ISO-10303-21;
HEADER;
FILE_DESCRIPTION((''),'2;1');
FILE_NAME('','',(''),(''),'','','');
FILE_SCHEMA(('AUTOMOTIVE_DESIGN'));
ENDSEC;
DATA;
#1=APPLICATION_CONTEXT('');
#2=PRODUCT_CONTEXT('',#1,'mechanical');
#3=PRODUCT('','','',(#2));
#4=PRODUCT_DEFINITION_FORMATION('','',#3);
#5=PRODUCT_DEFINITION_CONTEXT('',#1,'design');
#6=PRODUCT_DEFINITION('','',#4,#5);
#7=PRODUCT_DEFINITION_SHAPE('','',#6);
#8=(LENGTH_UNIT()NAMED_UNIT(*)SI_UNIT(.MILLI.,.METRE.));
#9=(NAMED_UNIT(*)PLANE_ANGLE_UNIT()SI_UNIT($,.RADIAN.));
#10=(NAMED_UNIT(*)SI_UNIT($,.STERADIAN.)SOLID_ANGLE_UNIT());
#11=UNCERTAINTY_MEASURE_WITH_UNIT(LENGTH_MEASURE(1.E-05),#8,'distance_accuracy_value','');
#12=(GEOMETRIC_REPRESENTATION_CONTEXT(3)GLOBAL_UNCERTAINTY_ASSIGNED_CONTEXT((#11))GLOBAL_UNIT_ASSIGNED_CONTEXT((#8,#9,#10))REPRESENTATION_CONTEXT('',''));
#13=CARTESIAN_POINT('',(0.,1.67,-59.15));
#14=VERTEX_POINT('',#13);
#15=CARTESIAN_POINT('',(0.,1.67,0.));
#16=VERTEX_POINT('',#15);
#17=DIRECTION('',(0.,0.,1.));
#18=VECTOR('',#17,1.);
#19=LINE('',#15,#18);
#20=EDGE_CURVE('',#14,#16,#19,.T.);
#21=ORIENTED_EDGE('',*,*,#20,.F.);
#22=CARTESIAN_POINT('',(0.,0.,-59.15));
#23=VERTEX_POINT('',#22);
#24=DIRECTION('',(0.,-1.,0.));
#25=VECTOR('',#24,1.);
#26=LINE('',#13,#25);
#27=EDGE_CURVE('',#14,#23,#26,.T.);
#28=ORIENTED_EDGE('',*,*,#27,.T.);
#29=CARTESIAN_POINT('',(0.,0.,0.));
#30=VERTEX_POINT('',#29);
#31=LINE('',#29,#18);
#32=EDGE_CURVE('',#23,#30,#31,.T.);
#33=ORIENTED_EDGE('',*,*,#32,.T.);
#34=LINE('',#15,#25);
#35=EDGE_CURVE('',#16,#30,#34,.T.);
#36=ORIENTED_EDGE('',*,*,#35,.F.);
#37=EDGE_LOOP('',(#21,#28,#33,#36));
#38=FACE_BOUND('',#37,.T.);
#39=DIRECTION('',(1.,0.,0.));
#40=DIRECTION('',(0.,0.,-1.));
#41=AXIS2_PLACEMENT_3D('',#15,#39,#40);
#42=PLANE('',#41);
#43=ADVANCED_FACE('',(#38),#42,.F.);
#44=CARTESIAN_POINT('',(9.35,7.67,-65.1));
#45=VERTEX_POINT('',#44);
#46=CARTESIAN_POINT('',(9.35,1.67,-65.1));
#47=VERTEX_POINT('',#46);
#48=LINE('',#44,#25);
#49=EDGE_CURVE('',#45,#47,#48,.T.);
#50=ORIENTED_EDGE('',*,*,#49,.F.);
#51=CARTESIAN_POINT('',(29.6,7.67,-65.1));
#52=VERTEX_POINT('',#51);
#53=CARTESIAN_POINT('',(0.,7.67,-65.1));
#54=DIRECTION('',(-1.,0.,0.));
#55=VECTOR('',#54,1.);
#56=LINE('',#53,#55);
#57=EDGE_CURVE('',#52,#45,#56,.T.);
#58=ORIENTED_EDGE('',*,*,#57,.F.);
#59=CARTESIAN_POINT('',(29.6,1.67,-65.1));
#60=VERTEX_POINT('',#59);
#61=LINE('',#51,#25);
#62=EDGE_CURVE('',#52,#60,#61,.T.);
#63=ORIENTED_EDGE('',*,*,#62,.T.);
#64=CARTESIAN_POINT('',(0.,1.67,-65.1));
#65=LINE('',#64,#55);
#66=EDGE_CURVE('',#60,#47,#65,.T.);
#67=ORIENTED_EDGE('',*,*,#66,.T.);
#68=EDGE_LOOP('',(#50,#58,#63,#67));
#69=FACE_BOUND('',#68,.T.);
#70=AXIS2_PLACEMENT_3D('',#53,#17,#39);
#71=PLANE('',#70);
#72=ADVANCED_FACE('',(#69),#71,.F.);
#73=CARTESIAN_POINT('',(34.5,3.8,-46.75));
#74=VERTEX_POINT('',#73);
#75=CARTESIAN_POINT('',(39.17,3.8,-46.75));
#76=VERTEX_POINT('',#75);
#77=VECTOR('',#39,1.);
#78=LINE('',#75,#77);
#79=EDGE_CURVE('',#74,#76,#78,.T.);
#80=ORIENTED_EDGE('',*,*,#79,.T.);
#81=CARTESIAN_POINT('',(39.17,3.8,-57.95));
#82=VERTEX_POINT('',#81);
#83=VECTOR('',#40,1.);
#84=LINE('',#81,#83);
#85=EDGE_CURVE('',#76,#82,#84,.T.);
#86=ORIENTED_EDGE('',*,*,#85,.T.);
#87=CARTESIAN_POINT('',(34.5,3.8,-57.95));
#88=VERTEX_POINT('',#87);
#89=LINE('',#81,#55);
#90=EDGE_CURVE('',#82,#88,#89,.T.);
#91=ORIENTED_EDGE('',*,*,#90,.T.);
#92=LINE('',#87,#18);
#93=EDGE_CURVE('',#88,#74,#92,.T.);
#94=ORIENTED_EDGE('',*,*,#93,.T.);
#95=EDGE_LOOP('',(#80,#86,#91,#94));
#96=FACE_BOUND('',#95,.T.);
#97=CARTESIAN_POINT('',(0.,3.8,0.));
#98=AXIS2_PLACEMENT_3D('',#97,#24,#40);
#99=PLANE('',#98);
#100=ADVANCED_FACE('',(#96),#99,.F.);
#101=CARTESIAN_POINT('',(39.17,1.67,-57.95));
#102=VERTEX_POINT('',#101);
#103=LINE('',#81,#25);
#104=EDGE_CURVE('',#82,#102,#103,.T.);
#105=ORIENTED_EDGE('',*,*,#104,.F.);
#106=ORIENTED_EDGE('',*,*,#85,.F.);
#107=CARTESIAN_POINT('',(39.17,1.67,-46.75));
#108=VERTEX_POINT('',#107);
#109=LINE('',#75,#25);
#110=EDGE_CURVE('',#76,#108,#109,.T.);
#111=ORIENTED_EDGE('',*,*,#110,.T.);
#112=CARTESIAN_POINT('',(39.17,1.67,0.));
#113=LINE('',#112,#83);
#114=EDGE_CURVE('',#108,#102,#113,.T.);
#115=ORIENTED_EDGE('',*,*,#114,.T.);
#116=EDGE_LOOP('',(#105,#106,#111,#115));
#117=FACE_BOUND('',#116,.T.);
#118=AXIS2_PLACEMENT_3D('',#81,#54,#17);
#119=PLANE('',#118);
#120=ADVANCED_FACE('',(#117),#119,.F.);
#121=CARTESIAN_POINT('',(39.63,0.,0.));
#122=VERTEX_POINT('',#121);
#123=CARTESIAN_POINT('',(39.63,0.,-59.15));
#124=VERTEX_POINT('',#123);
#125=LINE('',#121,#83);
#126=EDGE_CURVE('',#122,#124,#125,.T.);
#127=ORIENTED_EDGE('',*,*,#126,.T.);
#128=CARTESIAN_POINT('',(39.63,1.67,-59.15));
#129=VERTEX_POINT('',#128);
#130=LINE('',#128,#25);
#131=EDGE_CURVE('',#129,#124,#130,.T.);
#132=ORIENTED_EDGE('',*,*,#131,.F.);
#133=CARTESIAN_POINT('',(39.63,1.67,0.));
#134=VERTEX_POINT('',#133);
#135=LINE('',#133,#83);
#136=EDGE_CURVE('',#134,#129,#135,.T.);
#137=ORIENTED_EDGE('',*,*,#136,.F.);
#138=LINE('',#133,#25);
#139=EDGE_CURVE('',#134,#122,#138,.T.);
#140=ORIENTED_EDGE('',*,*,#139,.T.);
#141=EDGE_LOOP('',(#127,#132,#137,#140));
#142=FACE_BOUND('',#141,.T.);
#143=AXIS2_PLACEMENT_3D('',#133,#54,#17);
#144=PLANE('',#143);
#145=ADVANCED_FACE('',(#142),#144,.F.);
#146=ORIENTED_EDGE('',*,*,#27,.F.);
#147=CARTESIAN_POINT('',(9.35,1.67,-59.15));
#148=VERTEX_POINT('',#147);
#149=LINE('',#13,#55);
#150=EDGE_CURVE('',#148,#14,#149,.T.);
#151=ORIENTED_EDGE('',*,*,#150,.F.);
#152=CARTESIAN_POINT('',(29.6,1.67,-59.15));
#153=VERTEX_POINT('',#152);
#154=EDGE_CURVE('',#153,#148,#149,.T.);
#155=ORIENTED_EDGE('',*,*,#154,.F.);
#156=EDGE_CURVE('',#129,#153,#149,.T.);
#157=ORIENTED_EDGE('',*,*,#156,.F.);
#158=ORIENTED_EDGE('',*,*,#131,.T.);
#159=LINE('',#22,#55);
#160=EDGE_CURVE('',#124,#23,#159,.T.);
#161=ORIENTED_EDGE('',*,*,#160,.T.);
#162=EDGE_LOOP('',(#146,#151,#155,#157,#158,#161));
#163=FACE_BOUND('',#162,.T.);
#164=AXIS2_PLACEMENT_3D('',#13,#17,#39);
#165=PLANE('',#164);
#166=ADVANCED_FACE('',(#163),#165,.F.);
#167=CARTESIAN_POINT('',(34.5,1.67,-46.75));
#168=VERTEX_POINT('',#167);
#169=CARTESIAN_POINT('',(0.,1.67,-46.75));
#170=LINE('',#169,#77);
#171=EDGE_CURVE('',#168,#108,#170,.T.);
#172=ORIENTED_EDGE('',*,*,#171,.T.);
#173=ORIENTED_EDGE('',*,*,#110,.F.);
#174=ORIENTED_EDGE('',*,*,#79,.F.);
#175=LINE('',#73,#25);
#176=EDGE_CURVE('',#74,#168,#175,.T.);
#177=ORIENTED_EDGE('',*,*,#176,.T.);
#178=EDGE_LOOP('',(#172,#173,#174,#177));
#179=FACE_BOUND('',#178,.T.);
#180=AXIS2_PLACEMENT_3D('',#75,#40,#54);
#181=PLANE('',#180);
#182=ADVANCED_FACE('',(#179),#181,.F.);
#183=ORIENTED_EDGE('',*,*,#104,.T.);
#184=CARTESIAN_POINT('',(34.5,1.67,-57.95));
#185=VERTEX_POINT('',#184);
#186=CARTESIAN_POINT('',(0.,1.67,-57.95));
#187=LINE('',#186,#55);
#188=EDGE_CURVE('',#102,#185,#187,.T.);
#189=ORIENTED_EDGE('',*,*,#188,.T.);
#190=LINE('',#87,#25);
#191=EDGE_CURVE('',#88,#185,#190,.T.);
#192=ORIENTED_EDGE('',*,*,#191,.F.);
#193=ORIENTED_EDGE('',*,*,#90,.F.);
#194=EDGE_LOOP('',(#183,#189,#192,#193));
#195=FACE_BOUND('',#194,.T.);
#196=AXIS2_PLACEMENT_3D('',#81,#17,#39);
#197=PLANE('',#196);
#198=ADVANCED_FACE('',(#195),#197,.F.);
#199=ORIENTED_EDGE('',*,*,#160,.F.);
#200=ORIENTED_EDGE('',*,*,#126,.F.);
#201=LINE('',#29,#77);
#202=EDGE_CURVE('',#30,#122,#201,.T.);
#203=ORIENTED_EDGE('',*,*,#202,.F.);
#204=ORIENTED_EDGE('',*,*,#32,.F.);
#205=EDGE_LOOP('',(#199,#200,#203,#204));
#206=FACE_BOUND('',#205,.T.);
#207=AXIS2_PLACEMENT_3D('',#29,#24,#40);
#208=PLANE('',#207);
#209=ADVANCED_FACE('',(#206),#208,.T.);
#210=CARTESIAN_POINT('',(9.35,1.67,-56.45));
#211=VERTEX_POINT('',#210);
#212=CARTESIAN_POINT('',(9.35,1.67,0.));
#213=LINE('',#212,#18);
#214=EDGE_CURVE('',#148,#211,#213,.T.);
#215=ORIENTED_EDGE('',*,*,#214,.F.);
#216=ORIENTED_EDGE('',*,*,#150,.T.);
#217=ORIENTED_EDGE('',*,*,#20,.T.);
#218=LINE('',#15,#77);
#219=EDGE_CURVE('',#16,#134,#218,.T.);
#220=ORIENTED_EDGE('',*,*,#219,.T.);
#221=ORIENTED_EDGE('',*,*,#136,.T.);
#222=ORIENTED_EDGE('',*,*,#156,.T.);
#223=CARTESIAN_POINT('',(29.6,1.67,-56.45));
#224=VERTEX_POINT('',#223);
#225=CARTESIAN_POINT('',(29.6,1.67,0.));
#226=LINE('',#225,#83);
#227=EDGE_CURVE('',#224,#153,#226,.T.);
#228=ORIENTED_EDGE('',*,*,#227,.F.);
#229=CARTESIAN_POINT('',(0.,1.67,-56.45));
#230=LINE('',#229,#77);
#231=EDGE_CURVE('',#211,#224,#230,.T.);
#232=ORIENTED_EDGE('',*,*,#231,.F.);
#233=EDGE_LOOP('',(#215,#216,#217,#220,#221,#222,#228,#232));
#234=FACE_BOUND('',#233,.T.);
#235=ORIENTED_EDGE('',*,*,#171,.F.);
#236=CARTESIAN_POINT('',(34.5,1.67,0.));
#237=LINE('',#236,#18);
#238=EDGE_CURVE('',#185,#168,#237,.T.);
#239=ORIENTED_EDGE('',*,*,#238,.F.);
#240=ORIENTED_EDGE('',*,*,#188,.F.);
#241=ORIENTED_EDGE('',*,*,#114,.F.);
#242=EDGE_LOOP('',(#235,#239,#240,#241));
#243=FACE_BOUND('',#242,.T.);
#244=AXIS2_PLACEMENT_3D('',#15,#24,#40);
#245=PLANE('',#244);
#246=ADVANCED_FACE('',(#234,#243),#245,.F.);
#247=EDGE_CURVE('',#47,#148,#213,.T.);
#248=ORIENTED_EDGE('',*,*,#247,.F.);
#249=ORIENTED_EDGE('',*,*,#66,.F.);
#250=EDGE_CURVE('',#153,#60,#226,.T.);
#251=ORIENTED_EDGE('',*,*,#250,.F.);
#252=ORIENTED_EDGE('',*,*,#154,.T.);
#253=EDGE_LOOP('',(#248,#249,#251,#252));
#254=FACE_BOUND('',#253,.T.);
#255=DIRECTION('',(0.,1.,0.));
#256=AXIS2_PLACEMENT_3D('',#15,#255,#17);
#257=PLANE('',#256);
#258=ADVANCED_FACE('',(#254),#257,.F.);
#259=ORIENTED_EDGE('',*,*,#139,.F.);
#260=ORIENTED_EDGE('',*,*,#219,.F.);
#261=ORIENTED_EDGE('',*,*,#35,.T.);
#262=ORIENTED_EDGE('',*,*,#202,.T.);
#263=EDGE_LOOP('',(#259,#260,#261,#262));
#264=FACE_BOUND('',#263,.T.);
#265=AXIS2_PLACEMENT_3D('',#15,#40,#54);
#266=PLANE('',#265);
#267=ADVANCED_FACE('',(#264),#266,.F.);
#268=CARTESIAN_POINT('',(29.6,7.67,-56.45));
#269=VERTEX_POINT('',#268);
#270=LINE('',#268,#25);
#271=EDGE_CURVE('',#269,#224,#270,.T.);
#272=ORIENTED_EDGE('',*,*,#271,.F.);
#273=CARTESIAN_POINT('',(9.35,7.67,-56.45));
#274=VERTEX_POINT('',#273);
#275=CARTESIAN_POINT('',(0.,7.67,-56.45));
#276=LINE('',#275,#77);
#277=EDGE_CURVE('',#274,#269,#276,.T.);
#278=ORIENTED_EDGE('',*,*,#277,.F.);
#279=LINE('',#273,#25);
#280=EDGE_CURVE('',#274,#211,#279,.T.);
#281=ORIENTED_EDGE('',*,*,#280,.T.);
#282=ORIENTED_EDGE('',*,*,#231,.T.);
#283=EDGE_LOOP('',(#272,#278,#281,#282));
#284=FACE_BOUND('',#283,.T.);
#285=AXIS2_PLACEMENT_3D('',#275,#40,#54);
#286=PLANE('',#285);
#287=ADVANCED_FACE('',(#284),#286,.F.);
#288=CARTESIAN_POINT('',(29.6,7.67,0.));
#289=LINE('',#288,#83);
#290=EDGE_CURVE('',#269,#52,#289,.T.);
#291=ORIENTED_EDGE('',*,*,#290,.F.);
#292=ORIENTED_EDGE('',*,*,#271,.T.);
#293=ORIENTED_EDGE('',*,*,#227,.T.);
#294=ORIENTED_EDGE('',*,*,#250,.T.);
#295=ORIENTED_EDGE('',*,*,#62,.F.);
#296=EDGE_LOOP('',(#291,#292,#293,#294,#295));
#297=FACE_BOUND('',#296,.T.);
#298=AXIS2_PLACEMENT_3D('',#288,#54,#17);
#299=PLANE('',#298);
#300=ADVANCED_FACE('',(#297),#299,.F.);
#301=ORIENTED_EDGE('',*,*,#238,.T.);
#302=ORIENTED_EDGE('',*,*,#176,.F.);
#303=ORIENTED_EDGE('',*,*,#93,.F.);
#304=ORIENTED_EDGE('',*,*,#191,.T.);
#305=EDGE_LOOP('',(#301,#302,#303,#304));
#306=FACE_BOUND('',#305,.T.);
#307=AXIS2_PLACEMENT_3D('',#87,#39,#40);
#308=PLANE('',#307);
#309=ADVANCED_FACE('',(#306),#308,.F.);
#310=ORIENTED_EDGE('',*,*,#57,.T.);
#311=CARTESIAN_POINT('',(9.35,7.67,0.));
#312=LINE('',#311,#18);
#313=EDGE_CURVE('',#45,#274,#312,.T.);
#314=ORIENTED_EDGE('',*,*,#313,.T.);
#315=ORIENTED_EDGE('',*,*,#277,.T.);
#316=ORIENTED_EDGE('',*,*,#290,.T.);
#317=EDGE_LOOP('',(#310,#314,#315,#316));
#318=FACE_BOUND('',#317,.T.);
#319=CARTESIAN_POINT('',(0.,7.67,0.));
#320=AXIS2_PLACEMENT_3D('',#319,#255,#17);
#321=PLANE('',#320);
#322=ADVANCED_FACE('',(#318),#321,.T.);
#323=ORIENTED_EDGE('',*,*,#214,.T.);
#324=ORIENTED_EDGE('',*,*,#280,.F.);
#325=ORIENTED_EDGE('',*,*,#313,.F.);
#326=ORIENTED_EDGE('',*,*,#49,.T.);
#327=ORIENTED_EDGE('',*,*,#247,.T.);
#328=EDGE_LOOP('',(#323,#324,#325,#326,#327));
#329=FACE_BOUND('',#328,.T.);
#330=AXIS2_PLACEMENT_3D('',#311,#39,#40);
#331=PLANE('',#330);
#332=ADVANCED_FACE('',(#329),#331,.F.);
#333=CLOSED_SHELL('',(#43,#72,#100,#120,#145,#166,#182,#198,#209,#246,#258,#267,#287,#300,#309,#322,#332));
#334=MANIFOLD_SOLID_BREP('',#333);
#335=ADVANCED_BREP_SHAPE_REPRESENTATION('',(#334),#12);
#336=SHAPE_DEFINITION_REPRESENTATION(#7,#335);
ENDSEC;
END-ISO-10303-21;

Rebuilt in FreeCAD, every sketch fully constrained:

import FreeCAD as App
import Part
import Sketcher
Q = App.Units.Quantity

doc = App.newDocument("Part")
body = doc.addObject("PartDesign::Body", "Body")

# Sketch on XZ plane
sketch1 = body.newObject("Sketcher::SketchObject", "Sketch")
sketch1.AttachmentSupport = (doc.getObject("XZ_Plane"), [""])
sketch1.MapMode = "FlatFace"
sketch1.addGeometry([
    Part.LineSegment(App.Vector(0, -59, 0), App.Vector(0, 0, 0)),
    Part.LineSegment(App.Vector(0, 0, 0), App.Vector(40, 0, 0)),
    Part.LineSegment(App.Vector(40, 0, 0), App.Vector(40, -59, 0)),
    Part.LineSegment(App.Vector(40, -59, 0), App.Vector(0, -59, 0)),
], False)
sketch1.addConstraint([
    Sketcher.Constraint("Coincident", 0, 2, 1, 1),
    Sketcher.Constraint("Coincident", 1, 2, 2, 1),
    Sketcher.Constraint("Coincident", 2, 2, 3, 1),
    Sketcher.Constraint("Coincident", 3, 2, 0, 1),
    Sketcher.Constraint("Vertical", 0),
    Sketcher.Constraint("Horizontal", 1),
    Sketcher.Constraint("Vertical", 2),
    Sketcher.Constraint("Horizontal", 3),
    Sketcher.Constraint("Coincident", 0, 2, -1, 1),
    Sketcher.Constraint("DistanceX", 1, 1, 1, 2, Q("39.63 mm")),
    Sketcher.Constraint("DistanceY", 0, 1, 0, 2, Q("59.15 mm")),
])
pad1 = body.newObject("PartDesign::Pad", "Pad")
pad1.Profile = sketch1
pad1.Length = 1.67
pad1.Reversed = True

# Sketch on XZ plane
sketch2 = body.newObject("Sketcher::SketchObject", "Sketch001")
sketch2.AttachmentSupport = (doc.getObject("XZ_Plane"), [""])
sketch2.MapMode = "FlatFace"
sketch2.AttachmentOffset = App.Placement(App.Vector(0, 0, -1.67), App.Rotation())
sketch2.addGeometry([
    Part.LineSegment(App.Vector(9, -65, 0), App.Vector(9, -56, 0)),
    Part.LineSegment(App.Vector(9, -56, 0), App.Vector(30, -56, 0)),
    Part.LineSegment(App.Vector(30, -56, 0), App.Vector(30, -65, 0)),
    Part.LineSegment(App.Vector(30, -65, 0), App.Vector(9, -65, 0)),
], False)
sketch2.addConstraint([
    Sketcher.Constraint("Coincident", 0, 2, 1, 1),
    Sketcher.Constraint("Coincident", 1, 2, 2, 1),
    Sketcher.Constraint("Coincident", 2, 2, 3, 1),
    Sketcher.Constraint("Coincident", 3, 2, 0, 1),
    Sketcher.Constraint("Vertical", 0),
    Sketcher.Constraint("Horizontal", 1),
    Sketcher.Constraint("Vertical", 2),
    Sketcher.Constraint("Horizontal", 3),
    Sketcher.Constraint("DistanceX", 1, 1, 1, 2, Q("20.25 mm")),
    Sketcher.Constraint("DistanceY", 0, 1, 0, 2, Q("8.65 mm")),
    Sketcher.Constraint("DistanceX", -1, 1, 1, 2, Q("29.6 mm")),
    Sketcher.Constraint("DistanceY", 2, 2, -1, 1, Q("65.1 mm")),
])
pad2 = body.newObject("PartDesign::Pad", "Pad001")
pad2.Profile = sketch2
pad2.Length = 6
pad2.Reversed = True

# Sketch on XZ plane
sketch3 = body.newObject("Sketcher::SketchObject", "Sketch002")
sketch3.AttachmentSupport = (doc.getObject("XZ_Plane"), [""])
sketch3.MapMode = "FlatFace"
sketch3.addGeometry([
    Part.LineSegment(App.Vector(34.5, -58, 0), App.Vector(34.5, -46.8, 0)),
    Part.LineSegment(App.Vector(34.5, -46.8, 0), App.Vector(39.2, -46.8, 0)),
    Part.LineSegment(App.Vector(39.2, -46.8, 0), App.Vector(39.2, -58, 0)),
    Part.LineSegment(App.Vector(39.2, -58, 0), App.Vector(34.5, -58, 0)),
], False)
sketch3.addConstraint([
    Sketcher.Constraint("Coincident", 0, 2, 1, 1),
    Sketcher.Constraint("Coincident", 1, 2, 2, 1),
    Sketcher.Constraint("Coincident", 2, 2, 3, 1),
    Sketcher.Constraint("Coincident", 3, 2, 0, 1),
    Sketcher.Constraint("Vertical", 0),
    Sketcher.Constraint("Horizontal", 1),
    Sketcher.Constraint("Vertical", 2),
    Sketcher.Constraint("Horizontal", 3),
    Sketcher.Constraint("DistanceY", 0, 1, 0, 2, Q("11.2 mm")),
    Sketcher.Constraint("DistanceX", 1, 1, 1, 2, Q("4.67 mm")),
    Sketcher.Constraint("DistanceX", -1, 1, 0, 2, Q("34.5 mm")),
    Sketcher.Constraint("DistanceY", 0, 2, -1, 1, Q("46.75 mm")),
])
pad3 = body.newObject("PartDesign::Pad", "Pad002")
pad3.Profile = sketch3
pad3.Length = 3.8
pad3.Reversed = True

doc.recompute()
